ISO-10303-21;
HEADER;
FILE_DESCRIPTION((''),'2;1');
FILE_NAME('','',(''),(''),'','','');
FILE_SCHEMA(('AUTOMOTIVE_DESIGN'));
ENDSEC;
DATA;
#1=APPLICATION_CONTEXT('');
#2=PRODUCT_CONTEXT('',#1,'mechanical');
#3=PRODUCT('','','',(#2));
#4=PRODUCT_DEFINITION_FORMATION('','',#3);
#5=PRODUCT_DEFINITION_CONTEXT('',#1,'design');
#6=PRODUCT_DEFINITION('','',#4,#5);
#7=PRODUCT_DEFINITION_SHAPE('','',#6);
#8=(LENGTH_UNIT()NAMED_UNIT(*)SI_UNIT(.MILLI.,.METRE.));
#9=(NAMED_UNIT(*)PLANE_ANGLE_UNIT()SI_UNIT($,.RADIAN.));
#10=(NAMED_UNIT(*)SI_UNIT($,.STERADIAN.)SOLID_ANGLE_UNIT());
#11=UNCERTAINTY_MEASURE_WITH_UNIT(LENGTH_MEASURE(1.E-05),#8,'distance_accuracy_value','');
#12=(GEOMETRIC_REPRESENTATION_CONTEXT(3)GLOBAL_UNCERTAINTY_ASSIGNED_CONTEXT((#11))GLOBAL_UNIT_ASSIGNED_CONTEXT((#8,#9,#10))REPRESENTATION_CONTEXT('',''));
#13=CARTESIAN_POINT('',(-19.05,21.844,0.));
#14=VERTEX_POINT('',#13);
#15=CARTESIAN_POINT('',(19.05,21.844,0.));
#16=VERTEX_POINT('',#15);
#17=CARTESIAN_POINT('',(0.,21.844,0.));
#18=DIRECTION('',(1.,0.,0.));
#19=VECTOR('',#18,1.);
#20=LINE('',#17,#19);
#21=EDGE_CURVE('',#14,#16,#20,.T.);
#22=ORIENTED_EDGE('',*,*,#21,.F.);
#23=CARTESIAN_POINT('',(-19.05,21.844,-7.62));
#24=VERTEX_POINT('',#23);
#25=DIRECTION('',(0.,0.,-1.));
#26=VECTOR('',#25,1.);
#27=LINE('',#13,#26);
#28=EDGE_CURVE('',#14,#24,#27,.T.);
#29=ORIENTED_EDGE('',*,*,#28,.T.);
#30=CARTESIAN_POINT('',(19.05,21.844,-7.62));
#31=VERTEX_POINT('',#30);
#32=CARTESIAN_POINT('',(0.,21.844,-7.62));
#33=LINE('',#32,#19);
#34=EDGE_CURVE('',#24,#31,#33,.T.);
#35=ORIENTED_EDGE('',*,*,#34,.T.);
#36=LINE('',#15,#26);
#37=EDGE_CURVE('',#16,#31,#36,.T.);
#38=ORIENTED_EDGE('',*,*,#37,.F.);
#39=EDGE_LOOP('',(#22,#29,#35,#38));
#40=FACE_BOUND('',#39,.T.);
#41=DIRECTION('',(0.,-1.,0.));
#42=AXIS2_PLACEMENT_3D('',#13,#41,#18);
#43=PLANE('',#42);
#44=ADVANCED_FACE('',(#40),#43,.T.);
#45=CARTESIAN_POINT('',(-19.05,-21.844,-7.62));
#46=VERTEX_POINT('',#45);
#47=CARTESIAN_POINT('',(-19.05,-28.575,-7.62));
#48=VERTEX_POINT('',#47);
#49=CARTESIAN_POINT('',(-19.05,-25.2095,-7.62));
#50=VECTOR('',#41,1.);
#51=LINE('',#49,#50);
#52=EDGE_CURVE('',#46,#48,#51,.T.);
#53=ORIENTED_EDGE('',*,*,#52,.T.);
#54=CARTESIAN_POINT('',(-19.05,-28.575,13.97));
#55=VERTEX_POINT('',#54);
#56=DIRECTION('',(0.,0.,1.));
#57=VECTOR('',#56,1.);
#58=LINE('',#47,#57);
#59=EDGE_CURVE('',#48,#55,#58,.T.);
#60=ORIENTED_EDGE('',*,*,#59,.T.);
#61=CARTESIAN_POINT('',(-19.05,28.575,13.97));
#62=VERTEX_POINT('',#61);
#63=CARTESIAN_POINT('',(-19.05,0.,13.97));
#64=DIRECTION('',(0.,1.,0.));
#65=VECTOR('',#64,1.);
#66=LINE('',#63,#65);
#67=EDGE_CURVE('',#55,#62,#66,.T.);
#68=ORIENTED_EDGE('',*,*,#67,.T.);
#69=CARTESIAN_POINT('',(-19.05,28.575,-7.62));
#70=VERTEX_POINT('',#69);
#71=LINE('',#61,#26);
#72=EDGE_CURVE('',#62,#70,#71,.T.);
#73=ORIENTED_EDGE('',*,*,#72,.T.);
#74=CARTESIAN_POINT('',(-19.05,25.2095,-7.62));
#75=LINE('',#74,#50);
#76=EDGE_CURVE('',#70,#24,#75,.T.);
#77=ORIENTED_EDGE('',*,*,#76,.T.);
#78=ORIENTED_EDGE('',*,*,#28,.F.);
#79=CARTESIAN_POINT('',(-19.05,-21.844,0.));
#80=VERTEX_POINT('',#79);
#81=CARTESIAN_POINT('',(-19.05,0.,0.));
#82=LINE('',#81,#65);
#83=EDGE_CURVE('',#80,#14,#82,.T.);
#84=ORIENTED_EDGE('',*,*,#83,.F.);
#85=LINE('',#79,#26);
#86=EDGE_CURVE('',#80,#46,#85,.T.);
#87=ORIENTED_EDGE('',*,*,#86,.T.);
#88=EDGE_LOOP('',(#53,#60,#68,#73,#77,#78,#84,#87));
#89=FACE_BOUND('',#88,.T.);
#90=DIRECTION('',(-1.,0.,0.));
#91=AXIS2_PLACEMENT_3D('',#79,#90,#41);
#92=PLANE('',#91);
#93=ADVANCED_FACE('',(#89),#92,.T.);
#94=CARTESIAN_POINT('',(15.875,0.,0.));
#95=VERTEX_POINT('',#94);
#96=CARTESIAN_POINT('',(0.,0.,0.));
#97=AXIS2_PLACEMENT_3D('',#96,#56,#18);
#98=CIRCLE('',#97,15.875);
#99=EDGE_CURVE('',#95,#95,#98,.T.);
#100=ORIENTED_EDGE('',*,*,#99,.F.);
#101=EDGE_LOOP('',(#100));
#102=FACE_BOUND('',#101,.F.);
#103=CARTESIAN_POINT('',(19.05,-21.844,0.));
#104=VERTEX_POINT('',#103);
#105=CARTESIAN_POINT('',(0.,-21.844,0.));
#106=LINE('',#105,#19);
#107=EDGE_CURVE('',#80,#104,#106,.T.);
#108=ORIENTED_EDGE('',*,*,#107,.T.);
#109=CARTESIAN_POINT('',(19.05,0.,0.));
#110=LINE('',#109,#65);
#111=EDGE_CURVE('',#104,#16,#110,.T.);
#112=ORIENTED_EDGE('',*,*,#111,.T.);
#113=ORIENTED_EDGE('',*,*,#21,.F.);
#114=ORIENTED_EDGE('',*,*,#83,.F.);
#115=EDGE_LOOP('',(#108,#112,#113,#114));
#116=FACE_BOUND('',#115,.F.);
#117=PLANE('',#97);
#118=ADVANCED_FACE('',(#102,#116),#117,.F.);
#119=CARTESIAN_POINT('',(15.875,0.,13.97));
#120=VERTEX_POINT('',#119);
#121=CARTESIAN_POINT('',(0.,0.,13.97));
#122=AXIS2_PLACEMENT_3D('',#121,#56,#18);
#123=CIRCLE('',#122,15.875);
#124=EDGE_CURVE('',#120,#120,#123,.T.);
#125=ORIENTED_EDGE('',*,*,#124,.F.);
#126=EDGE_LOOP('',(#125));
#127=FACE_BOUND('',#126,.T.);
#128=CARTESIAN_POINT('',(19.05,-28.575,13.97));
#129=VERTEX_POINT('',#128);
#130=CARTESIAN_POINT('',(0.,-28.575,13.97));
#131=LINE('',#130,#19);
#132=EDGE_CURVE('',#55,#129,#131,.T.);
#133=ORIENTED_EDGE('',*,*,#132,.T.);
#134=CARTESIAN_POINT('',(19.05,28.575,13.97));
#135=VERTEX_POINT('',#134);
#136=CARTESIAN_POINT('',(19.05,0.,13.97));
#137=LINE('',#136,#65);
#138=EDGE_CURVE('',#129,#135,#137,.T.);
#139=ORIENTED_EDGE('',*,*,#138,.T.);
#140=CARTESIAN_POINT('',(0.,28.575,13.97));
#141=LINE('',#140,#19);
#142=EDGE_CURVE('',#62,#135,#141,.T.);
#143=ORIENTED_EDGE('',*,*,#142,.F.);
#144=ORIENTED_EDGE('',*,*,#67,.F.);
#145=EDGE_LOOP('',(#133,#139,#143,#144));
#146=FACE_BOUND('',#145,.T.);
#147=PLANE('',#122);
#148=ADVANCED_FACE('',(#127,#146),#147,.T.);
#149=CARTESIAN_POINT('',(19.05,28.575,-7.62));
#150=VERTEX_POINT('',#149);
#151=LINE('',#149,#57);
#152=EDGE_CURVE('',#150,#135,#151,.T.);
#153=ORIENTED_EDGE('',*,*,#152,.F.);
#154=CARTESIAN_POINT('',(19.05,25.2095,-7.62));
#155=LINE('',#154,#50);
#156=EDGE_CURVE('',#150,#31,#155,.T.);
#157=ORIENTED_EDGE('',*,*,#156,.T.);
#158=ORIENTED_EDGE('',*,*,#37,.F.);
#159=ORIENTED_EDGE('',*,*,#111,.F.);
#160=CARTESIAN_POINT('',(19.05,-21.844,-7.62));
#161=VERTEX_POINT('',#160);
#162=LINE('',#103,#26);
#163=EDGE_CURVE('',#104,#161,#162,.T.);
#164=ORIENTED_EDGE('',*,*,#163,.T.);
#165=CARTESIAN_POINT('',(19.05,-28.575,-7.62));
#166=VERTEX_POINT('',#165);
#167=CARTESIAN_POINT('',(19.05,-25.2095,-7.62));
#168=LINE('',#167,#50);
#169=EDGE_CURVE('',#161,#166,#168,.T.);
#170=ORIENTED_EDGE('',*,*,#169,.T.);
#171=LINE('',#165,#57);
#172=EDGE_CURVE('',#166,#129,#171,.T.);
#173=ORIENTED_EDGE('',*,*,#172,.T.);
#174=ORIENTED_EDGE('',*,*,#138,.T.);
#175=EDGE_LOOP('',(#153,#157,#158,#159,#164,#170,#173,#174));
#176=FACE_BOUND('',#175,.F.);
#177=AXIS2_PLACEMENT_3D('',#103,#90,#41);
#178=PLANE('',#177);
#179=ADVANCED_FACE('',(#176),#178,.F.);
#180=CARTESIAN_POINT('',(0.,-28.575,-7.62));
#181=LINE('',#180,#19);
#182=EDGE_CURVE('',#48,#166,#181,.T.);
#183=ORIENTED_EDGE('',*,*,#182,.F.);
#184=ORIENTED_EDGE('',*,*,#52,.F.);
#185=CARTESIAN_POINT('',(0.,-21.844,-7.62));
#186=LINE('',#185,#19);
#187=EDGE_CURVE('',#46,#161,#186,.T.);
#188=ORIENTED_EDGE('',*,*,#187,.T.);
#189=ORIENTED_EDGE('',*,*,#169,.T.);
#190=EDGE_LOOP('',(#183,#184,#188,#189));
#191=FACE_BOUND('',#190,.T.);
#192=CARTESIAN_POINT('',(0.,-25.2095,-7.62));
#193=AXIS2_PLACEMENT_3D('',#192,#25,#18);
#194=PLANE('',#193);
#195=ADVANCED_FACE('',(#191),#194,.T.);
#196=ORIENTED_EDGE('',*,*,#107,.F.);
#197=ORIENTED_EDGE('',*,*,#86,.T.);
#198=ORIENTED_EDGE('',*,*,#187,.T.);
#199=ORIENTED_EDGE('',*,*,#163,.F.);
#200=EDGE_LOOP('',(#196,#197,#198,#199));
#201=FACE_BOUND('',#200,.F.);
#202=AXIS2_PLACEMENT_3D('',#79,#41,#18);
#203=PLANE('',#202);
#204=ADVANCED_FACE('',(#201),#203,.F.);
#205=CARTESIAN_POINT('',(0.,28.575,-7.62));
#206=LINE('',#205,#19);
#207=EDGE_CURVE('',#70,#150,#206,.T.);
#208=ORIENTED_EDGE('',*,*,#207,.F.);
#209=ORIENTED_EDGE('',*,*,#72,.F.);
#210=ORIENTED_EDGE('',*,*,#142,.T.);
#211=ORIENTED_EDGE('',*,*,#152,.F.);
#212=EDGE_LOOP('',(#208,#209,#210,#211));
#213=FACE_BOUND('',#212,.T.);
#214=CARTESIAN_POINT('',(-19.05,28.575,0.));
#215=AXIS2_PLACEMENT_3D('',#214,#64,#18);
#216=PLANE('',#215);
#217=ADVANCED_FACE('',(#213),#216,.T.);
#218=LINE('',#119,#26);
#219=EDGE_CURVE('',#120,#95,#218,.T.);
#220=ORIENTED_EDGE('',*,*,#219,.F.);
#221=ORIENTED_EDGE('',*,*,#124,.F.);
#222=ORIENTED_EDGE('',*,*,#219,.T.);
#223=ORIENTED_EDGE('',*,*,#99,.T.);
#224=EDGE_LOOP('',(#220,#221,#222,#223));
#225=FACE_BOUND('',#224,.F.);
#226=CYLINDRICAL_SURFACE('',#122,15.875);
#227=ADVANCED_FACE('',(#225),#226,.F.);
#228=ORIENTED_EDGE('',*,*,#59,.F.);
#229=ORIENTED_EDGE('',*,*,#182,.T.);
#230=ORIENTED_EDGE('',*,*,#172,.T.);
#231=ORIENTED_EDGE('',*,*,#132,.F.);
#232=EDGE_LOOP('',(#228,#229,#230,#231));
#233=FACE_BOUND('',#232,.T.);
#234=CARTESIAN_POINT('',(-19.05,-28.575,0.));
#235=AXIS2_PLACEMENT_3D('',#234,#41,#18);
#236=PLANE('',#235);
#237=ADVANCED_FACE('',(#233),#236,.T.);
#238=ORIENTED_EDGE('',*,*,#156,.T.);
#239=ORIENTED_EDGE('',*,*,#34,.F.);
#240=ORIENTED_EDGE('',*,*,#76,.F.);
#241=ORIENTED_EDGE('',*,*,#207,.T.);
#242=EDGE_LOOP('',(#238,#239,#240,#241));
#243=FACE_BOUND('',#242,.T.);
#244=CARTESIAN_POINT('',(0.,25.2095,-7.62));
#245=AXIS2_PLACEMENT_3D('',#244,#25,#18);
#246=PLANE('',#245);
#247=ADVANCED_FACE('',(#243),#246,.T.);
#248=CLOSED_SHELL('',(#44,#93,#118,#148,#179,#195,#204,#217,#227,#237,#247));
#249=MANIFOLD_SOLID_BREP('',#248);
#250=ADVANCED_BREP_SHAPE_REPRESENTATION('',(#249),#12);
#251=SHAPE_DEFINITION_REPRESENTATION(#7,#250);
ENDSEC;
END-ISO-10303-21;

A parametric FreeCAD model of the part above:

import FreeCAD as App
import Part
import Sketcher
from FreeCAD import Vector
Q = App.Units.Quantity

doc = App.newDocument("Part")
params = doc.addObject("Spreadsheet::Sheet", "Params")
for row, (alias, value) in enumerate([
    ("sketch1_width", "1.5 in"),
    ("sketch1_height", "2.25 in"),
    ("pad1_length", "0.55 in"),
    ("sketch2_diameter", "1.25 in"),
    ("pocket1_length", "1 in"),
    ("sketch3_width", "1.5 in"),
    ("sketch3_height", "0.265 in"),
    ("pad2_length", "0.3 in"),
], start=1):
    params.set(f"A{row}", alias)
    params.set(f"B{row}", "=" + value)
    params.setAlias(f"B{row}", alias)

body = doc.addObject("PartDesign::Body", "Body")

# Sketch on XY plane
sketch1 = body.newObject("Sketcher::SketchObject", "Sketch")
sketch1.AttachmentSupport = (doc.getObject("XY_Plane"), [""])
sketch1.MapMode = "FlatFace"
sketch1.addGeometry(Part.LineSegment(Vector(-19, 29, 0), Vector(-19, -29, 0)), False)
sketch1.addGeometry(Part.LineSegment(Vector(-19, -29, 0), Vector(19, -29, 0)), False)
sketch1.addGeometry(Part.LineSegment(Vector(19, -29, 0), Vector(19, 29, 0)), False)
sketch1.addGeometry(Part.LineSegment(Vector(19, 29, 0), Vector(-19, 29, 0)), False)
sketch1.addConstraint(Sketcher.Constraint("Coincident", 0, 2, 1, 1))
sketch1.addConstraint(Sketcher.Constraint("Coincident", 1, 2, 2, 1))
sketch1.addConstraint(Sketcher.Constraint("Coincident", 2, 2, 3, 1))
sketch1.addConstraint(Sketcher.Constraint("Coincident", 3, 2, 0, 1))
sketch1.addConstraint(Sketcher.Constraint("Vertical", 0))
sketch1.addConstraint(Sketcher.Constraint("Horizontal", 1))
sketch1.addConstraint(Sketcher.Constraint("Vertical", 2))
sketch1.addConstraint(Sketcher.Constraint("Horizontal", 3))
sketch1.addConstraint(Sketcher.Constraint("Symmetric", 0, 2, 2, 2, -1, 1))
sketch1.addConstraint(Sketcher.Constraint("DistanceX", 1, 1, 1, 2, Q("1.5 in")))
sketch1.addConstraint(Sketcher.Constraint("DistanceY", 0, 2, 0, 1, Q("2.25 in")))
sketch1.setExpression("Constraints[9]", "Params.sketch1_width")
sketch1.setExpression("Constraints[10]", "Params.sketch1_height")
pad1 = body.newObject("PartDesign::Pad", "Pad")
pad1.Profile = sketch1
pad1.setExpression("Length", "Params.pad1_length")

# Sketch on XY plane
sketch2 = body.newObject("Sketcher::SketchObject", "Sketch001")
sketch2.AttachmentSupport = (doc.getObject("XY_Plane"), [""])
sketch2.MapMode = "FlatFace"
sketch2.AttachmentOffset = App.Placement(Vector(0, 0, 0.55 * 25.4), App.Rotation())
sketch2.addGeometry(Part.Circle(Vector(0, 0, 0), Vector(0, 0, 1), 16), False)
sketch2.addConstraint(Sketcher.Constraint("Coincident", 0, 3, -1, 1))
sketch2.addConstraint(Sketcher.Constraint("Diameter", 0, Q("1.25 in")))
sketch2.setExpression("Constraints[1]", "Params.sketch2_diameter")
pocket1 = body.newObject("PartDesign::Pocket", "Pocket")
pocket1.Profile = sketch2
pocket1.setExpression("Length", "Params.pocket1_length")

# Sketch on XY plane
sketch3 = body.newObject("Sketcher::SketchObject", "Sketch002")
sketch3.AttachmentSupport = (doc.getObject("XY_Plane"), [""])
sketch3.MapMode = "FlatFace"
sketch3.addGeometry(Part.LineSegment(Vector(-19, -29, 0), Vector(-19, -22, 0)), False)
sketch3.addGeometry(Part.LineSegment(Vector(-19, -22, 0), Vector(19, -22, 0)), False)
sketch3.addGeometry(Part.LineSegment(Vector(19, -22, 0), Vector(19, -29, 0)), False)
sketch3.addGeometry(Part.LineSegment(Vector(19, -29, 0), Vector(-19, -29, 0)), False)
sketch3.addGeometry(Part.LineSegment(Vector(-19, 22, 0), Vector(-19, 29, 0)), False)
sketch3.addGeometry(Part.LineSegment(Vector(-19, 29, 0), Vector(19, 29, 0)), False)
sketch3.addGeometry(Part.LineSegment(Vector(19, 29, 0), Vector(19, 22, 0)), False)
sketch3.addGeometry(Part.LineSegment(Vector(19, 22, 0), Vector(-19, 22, 0)), False)
sketch3.addConstraint(Sketcher.Constraint("Coincident", 0, 2, 1, 1))
sketch3.addConstraint(Sketcher.Constraint("Coincident", 1, 2, 2, 1))
sketch3.addConstraint(Sketcher.Constraint("Coincident", 2, 2, 3, 1))
sketch3.addConstraint(Sketcher.Constraint("Coincident", 3, 2, 0, 1))
sketch3.addConstraint(Sketcher.Constraint("Coincident", 4, 2, 5, 1))
sketch3.addConstraint(Sketcher.Constraint("Coincident", 5, 2, 6, 1))
sketch3.addConstraint(Sketcher.Constraint("Coincident", 6, 2, 7, 1))
sketch3.addConstraint(Sketcher.Constraint("Coincident", 7, 2, 4, 1))
sketch3.addConstraint(Sketcher.Constraint("Vertical", 0))
sketch3.addConstraint(Sketcher.Constraint("Horizontal", 1))
sketch3.addConstraint(Sketcher.Constraint("Vertical", 2))
sketch3.addConstraint(Sketcher.Constraint("Horizontal", 3))
sketch3.addConstraint(Sketcher.Constraint("Vertical", 4))
sketch3.addConstraint(Sketcher.Constraint("Horizontal", 5))
sketch3.addConstraint(Sketcher.Constraint("Vertical", 6))
sketch3.addConstraint(Sketcher.Constraint("Horizontal", 7))
sketch3.addConstraint(Sketcher.Constraint("Symmetric", 2, 2, 4, 2, -1, 1))
sketch3.addConstraint(Sketcher.Constraint("Symmetric", 0, 2, 6, 2, -1, 1))
sketch3.addConstraint(Sketcher.Constraint("Vertical", 3, 2, 4, 2))
sketch3.addConstraint(Sketcher.Constraint("DistanceX", 1, 1, 1, 2, Q("1.5 in")))
sketch3.addConstraint(Sketcher.Constraint("DistanceY", 0, 1, 0, 2, Q("0.265 in")))
sketch3.addConstraint(Sketcher.Constraint("DistanceY", 0, 2, -1, 1, Q("0.86 in")))
sketch3.setExpression("Constraints[19]", "Params.sketch3_width")
sketch3.setExpression("Constraints[20]", "Params.sketch3_height")
pad2 = body.newObject("PartDesign::Pad", "Pad001")
pad2.Profile = sketch3
pad2.setExpression("Length", "Params.pad2_length")
pad2.Reversed = True

doc.recompute()
